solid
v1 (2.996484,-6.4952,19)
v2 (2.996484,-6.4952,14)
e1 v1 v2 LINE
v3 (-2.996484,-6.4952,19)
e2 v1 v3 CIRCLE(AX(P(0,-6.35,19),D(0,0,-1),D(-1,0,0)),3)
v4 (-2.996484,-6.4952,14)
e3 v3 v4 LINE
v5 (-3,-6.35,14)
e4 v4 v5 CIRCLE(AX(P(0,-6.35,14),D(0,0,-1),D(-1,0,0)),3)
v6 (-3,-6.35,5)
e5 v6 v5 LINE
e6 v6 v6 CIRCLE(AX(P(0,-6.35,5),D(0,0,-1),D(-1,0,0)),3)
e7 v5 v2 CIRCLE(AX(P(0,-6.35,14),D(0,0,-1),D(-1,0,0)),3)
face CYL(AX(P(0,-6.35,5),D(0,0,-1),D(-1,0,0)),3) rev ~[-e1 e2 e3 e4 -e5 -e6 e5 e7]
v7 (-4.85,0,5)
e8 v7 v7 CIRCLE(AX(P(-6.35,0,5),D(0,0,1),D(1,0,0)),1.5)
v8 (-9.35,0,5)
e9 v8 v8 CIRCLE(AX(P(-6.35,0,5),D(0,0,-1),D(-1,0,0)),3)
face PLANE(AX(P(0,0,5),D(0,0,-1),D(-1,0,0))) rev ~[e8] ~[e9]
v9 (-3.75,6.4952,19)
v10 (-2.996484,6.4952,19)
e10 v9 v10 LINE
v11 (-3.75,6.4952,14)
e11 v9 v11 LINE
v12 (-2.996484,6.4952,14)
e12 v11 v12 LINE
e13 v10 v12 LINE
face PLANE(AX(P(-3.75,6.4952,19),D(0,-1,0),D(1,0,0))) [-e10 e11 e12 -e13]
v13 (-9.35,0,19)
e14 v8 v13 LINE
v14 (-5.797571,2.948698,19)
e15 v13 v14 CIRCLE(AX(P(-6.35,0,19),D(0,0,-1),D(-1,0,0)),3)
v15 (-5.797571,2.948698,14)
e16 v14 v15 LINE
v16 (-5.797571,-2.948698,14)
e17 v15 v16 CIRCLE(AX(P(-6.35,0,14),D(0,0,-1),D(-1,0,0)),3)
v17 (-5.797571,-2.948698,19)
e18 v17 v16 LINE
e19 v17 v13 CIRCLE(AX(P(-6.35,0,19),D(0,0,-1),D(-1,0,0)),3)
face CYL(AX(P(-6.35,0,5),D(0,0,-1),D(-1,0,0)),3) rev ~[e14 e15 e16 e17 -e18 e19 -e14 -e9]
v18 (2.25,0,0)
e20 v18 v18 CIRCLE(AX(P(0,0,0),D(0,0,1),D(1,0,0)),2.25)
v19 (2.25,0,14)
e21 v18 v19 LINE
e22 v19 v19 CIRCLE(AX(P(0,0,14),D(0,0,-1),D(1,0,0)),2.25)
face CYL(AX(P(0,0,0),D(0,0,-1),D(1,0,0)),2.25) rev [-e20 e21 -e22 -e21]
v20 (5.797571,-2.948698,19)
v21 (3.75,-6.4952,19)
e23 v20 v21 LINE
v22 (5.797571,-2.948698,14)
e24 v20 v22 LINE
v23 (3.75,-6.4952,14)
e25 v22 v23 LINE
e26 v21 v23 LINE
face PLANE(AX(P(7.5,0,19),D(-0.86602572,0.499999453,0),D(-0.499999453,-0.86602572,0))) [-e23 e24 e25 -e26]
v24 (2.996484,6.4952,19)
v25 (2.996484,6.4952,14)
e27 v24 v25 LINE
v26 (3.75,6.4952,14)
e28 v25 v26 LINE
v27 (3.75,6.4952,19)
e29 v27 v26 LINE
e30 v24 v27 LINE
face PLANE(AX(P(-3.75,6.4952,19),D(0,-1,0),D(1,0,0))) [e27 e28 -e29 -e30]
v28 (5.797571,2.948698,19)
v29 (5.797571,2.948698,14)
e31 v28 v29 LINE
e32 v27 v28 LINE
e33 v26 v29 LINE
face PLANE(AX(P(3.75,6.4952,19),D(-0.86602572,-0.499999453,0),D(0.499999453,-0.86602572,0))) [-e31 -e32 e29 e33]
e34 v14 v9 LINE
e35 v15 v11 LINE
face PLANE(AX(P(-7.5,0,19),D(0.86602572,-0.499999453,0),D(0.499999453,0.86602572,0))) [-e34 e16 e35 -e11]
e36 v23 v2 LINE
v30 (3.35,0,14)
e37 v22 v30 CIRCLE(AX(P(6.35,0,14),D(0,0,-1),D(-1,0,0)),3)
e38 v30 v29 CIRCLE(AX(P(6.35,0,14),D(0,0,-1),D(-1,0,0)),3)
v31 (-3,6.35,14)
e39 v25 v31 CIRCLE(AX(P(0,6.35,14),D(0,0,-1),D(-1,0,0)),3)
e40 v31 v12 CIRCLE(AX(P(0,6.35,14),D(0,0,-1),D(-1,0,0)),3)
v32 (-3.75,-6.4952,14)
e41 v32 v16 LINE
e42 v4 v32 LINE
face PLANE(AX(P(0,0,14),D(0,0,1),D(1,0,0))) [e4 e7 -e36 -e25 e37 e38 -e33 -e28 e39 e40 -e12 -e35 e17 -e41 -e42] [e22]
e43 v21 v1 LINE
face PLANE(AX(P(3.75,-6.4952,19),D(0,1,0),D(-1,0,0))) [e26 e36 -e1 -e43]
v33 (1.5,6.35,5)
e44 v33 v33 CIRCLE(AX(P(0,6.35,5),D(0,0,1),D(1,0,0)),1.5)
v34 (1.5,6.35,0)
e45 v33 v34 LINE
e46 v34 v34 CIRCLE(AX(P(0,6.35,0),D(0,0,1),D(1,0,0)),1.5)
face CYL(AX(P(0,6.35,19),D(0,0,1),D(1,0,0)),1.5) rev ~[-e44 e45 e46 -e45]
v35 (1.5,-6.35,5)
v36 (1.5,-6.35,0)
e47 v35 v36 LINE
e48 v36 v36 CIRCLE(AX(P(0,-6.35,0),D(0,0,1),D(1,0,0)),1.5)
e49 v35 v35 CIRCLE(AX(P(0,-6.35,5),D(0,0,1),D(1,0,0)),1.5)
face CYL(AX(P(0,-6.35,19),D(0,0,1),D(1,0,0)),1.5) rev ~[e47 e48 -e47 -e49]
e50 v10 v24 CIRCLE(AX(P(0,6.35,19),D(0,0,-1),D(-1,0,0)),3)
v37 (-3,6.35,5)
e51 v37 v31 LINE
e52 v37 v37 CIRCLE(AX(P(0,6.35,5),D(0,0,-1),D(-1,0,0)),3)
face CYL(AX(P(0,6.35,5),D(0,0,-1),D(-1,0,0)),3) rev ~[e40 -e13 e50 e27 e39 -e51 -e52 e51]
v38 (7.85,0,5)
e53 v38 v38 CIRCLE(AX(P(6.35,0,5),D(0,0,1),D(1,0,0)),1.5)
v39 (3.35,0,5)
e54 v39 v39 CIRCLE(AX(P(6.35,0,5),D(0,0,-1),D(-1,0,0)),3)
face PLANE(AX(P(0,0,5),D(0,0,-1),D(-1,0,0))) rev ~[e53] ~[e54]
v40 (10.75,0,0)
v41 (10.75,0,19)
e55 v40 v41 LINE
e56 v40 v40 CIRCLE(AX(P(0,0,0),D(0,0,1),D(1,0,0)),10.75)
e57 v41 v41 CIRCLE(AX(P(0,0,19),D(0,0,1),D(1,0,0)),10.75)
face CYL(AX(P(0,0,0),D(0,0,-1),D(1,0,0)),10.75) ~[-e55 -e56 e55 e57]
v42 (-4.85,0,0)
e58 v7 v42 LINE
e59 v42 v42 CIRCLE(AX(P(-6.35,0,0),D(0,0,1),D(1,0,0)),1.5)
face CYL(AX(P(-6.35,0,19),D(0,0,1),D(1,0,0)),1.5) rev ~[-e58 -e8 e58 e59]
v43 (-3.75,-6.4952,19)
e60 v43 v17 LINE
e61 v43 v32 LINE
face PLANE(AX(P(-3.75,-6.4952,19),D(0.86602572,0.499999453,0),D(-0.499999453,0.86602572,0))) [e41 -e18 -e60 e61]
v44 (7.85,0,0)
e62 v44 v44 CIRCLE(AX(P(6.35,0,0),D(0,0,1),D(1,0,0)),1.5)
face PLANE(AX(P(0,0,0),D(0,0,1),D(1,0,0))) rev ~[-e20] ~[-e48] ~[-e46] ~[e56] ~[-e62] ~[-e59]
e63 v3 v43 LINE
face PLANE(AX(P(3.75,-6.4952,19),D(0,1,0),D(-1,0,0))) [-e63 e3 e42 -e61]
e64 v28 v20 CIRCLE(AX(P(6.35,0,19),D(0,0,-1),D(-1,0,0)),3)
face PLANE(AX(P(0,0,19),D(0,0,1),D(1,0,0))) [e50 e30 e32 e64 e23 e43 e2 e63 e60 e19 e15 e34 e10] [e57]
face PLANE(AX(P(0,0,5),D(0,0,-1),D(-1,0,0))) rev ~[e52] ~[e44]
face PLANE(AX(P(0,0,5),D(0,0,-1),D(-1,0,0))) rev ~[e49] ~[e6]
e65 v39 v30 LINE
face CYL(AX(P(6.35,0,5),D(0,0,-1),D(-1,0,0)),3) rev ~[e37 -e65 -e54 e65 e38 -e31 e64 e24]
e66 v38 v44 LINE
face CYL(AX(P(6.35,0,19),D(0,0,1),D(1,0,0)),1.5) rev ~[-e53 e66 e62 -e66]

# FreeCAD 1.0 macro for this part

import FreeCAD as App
import Part
import Sketcher
from FreeCAD import Vector
Q = App.Units.Quantity


def add_polygon(sketch, points):
    """Adds a closed chain of lines whose ends are joined by coincident constraints."""
    first, n = sketch.GeometryCount, len(points)
    for a, b in zip(points, points[1:] + points[:1]):
        sketch.addGeometry(Part.LineSegment(App.Vector(*a, 0), App.Vector(*b, 0)), False)
    for i in range(n):
        sketch.addConstraint(Sketcher.Constraint("Coincident", first + i, 2, first + (i + 1) % n, 1))

doc = App.newDocument("Part")
body = doc.addObject("PartDesign::Body", "Body")

sketch1 = doc.addObject("Sketcher::SketchObject", "Sketch")
body.addObject(sketch1)
sketch1.AttachmentSupport = (doc.XY_Plane, [""])
sketch1.MapMode = "FlatFace"
sketch1.addGeometry([
    Part.Circle(Vector(0, 0, 0), Vector(0, 0, 1), 10.75),
    Part.Circle(Vector(0, 0, 0), Vector(0, 0, 1), 2.25),
], False)
sketch1.addConstraint([
    Sketcher.Constraint("Coincident", 0, 3, -1, 1),
    Sketcher.Constraint("Coincident", 1, 3, -1, 1),
    Sketcher.Constraint("Diameter", 0, 21.5),
    Sketcher.Constraint("Diameter", 1, 4.5),
])
pad1 = doc.addObject("PartDesign::Pad", "Pad")
body.addObject(pad1)
pad1.Profile = sketch1
pad1.Length = 19

sketch2 = doc.addObject("Sketcher::SketchObject", "Sketch001")
body.addObject(sketch2)
sketch2.AttachmentSupport = (doc.XY_Plane, [""])
sketch2.MapMode = "FlatFace"
sketch2.AttachmentOffset = App.Placement(Vector(0, 0, 19), App.Rotation())
add_polygon(sketch2, [(3.75, -6.4952), (7.5, 0), (3.75, 6.4952), (-3.75, 6.4952), (-7.5, 0), (-3.75, -6.4952)])
sketch2.addConstraint([
    Sketcher.Constraint("Horizontal", 2),
    Sketcher.Constraint("Horizontal", 5),
    Sketcher.Constraint("Symmetric", 0, 2, 3, 2, -1, 1),
    Sketcher.Constraint("Symmetric", 1, 2, 4, 2, -1, 1),
    Sketcher.Constraint("PointOnObject", 0, 2, -1),
    Sketcher.Constraint("Parallel", 0, 3),
    Sketcher.Constraint("Vertical", 2, 2, 4, 2),
    Sketcher.Constraint("DistanceX", 3, 2, 0, 2, 15.0),
    Sketcher.Constraint("Angle", 0, Q("60 deg")),
    Sketcher.Constraint("DistanceX", 2, 2, 2, 1, 7.5),
])
pocket1 = doc.addObject("PartDesign::Pocket", "Pocket")
body.addObject(pocket1)
pocket1.Profile = sketch2
pocket1.Length = 5

sketch3 = doc.addObject("Sketcher::SketchObject", "Sketch002")
body.addObject(sketch3)
sketch3.AttachmentSupport = (doc.XY_Plane, [""])
sketch3.MapMode = "FlatFace"
sketch3.AttachmentOffset = App.Placement(Vector(0, 0, 19), App.Rotation())
sketch3.addGeometry([
    Part.Circle(Vector(0, -6.35, 0), Vector(0, 0, 1), 1.5),
    Part.Circle(Vector(0, 6.35, 0), Vector(0, 0, 1), 1.5),
    Part.Circle(Vector(6.35, 0, 0), Vector(0, 0, 1), 1.5),
    Part.Circle(Vector(-6.35, 0, 0), Vector(0, 0, 1), 1.5),
], False)
sketch3.addConstraint([
    Sketcher.Constraint("Equal", 0, 1),
    Sketcher.Constraint("Equal", 1, 2),
    Sketcher.Constraint("Equal", 2, 3),
    Sketcher.Constraint("Symmetric", 0, 3, 1, 3, -1, 1),
    Sketcher.Constraint("Symmetric", 2, 3, 3, 3, -1, 1),
    Sketcher.Constraint("PointOnObject", 0, 3, -2),
    Sketcher.Constraint("PointOnObject", 2, 3, -1),
    Sketcher.Constraint("Diameter", 0, 3.0),
    Sketcher.Constraint("DistanceY", 0, 3, 1, 3, 12.7),
    Sketcher.Constraint("DistanceX", 3, 3, 2, 3, 12.7),
])
pocket2 = doc.addObject("PartDesign::Pocket", "Pocket001")
body.addObject(pocket2)
pocket2.Profile = sketch3
pocket2.Type = "ThroughAll"

sketch4 = doc.addObject("Sketcher::SketchObject", "Sketch003")
body.addObject(sketch4)
sketch4.AttachmentSupport = (doc.XY_Plane, [""])
sketch4.MapMode = "FlatFace"
sketch4.AttachmentOffset = App.Placement(Vector(0, 0, 5), App.Rotation())
sketch4.addGeometry([
    Part.Circle(Vector(6.35, 0, 0), Vector(0, 0, 1), 3),
    Part.Circle(Vector(0, -6.35, 0), Vector(0, 0, 1), 3),
    Part.Circle(Vector(-6.35, 0, 0), Vector(0, 0, 1), 3),
    Part.Circle(Vector(0, 6.35, 0), Vector(0, 0, 1), 3),
], False)
sketch4.addConstraint([
    Sketcher.Constraint("Equal", 0, 1),
    Sketcher.Constraint("Equal", 1, 2),
    Sketcher.Constraint("Equal", 2, 3),
    Sketcher.Constraint("Symmetric", 0, 3, 2, 3, -1, 1),
    Sketcher.Constraint("Symmetric", 1, 3, 3, 3, -1, 1),
    Sketcher.Constraint("PointOnObject", 0, 3, -1),
    Sketcher.Constraint("PointOnObject", 1, 3, -2),
    Sketcher.Constraint("Diameter", 0, 6.0),
    Sketcher.Constraint("DistanceX", 2, 3, 0, 3, 12.7),
    Sketcher.Constraint("DistanceY", 1, 3, 3, 3, 12.7),
])
pocket3 = doc.addObject("PartDesign::Pocket", "Pocket002")
body.addObject(pocket3)
pocket3.Profile = sketch4
pocket3.Type = "ThroughAll"
pocket3.Reversed = True

doc.recompute()
